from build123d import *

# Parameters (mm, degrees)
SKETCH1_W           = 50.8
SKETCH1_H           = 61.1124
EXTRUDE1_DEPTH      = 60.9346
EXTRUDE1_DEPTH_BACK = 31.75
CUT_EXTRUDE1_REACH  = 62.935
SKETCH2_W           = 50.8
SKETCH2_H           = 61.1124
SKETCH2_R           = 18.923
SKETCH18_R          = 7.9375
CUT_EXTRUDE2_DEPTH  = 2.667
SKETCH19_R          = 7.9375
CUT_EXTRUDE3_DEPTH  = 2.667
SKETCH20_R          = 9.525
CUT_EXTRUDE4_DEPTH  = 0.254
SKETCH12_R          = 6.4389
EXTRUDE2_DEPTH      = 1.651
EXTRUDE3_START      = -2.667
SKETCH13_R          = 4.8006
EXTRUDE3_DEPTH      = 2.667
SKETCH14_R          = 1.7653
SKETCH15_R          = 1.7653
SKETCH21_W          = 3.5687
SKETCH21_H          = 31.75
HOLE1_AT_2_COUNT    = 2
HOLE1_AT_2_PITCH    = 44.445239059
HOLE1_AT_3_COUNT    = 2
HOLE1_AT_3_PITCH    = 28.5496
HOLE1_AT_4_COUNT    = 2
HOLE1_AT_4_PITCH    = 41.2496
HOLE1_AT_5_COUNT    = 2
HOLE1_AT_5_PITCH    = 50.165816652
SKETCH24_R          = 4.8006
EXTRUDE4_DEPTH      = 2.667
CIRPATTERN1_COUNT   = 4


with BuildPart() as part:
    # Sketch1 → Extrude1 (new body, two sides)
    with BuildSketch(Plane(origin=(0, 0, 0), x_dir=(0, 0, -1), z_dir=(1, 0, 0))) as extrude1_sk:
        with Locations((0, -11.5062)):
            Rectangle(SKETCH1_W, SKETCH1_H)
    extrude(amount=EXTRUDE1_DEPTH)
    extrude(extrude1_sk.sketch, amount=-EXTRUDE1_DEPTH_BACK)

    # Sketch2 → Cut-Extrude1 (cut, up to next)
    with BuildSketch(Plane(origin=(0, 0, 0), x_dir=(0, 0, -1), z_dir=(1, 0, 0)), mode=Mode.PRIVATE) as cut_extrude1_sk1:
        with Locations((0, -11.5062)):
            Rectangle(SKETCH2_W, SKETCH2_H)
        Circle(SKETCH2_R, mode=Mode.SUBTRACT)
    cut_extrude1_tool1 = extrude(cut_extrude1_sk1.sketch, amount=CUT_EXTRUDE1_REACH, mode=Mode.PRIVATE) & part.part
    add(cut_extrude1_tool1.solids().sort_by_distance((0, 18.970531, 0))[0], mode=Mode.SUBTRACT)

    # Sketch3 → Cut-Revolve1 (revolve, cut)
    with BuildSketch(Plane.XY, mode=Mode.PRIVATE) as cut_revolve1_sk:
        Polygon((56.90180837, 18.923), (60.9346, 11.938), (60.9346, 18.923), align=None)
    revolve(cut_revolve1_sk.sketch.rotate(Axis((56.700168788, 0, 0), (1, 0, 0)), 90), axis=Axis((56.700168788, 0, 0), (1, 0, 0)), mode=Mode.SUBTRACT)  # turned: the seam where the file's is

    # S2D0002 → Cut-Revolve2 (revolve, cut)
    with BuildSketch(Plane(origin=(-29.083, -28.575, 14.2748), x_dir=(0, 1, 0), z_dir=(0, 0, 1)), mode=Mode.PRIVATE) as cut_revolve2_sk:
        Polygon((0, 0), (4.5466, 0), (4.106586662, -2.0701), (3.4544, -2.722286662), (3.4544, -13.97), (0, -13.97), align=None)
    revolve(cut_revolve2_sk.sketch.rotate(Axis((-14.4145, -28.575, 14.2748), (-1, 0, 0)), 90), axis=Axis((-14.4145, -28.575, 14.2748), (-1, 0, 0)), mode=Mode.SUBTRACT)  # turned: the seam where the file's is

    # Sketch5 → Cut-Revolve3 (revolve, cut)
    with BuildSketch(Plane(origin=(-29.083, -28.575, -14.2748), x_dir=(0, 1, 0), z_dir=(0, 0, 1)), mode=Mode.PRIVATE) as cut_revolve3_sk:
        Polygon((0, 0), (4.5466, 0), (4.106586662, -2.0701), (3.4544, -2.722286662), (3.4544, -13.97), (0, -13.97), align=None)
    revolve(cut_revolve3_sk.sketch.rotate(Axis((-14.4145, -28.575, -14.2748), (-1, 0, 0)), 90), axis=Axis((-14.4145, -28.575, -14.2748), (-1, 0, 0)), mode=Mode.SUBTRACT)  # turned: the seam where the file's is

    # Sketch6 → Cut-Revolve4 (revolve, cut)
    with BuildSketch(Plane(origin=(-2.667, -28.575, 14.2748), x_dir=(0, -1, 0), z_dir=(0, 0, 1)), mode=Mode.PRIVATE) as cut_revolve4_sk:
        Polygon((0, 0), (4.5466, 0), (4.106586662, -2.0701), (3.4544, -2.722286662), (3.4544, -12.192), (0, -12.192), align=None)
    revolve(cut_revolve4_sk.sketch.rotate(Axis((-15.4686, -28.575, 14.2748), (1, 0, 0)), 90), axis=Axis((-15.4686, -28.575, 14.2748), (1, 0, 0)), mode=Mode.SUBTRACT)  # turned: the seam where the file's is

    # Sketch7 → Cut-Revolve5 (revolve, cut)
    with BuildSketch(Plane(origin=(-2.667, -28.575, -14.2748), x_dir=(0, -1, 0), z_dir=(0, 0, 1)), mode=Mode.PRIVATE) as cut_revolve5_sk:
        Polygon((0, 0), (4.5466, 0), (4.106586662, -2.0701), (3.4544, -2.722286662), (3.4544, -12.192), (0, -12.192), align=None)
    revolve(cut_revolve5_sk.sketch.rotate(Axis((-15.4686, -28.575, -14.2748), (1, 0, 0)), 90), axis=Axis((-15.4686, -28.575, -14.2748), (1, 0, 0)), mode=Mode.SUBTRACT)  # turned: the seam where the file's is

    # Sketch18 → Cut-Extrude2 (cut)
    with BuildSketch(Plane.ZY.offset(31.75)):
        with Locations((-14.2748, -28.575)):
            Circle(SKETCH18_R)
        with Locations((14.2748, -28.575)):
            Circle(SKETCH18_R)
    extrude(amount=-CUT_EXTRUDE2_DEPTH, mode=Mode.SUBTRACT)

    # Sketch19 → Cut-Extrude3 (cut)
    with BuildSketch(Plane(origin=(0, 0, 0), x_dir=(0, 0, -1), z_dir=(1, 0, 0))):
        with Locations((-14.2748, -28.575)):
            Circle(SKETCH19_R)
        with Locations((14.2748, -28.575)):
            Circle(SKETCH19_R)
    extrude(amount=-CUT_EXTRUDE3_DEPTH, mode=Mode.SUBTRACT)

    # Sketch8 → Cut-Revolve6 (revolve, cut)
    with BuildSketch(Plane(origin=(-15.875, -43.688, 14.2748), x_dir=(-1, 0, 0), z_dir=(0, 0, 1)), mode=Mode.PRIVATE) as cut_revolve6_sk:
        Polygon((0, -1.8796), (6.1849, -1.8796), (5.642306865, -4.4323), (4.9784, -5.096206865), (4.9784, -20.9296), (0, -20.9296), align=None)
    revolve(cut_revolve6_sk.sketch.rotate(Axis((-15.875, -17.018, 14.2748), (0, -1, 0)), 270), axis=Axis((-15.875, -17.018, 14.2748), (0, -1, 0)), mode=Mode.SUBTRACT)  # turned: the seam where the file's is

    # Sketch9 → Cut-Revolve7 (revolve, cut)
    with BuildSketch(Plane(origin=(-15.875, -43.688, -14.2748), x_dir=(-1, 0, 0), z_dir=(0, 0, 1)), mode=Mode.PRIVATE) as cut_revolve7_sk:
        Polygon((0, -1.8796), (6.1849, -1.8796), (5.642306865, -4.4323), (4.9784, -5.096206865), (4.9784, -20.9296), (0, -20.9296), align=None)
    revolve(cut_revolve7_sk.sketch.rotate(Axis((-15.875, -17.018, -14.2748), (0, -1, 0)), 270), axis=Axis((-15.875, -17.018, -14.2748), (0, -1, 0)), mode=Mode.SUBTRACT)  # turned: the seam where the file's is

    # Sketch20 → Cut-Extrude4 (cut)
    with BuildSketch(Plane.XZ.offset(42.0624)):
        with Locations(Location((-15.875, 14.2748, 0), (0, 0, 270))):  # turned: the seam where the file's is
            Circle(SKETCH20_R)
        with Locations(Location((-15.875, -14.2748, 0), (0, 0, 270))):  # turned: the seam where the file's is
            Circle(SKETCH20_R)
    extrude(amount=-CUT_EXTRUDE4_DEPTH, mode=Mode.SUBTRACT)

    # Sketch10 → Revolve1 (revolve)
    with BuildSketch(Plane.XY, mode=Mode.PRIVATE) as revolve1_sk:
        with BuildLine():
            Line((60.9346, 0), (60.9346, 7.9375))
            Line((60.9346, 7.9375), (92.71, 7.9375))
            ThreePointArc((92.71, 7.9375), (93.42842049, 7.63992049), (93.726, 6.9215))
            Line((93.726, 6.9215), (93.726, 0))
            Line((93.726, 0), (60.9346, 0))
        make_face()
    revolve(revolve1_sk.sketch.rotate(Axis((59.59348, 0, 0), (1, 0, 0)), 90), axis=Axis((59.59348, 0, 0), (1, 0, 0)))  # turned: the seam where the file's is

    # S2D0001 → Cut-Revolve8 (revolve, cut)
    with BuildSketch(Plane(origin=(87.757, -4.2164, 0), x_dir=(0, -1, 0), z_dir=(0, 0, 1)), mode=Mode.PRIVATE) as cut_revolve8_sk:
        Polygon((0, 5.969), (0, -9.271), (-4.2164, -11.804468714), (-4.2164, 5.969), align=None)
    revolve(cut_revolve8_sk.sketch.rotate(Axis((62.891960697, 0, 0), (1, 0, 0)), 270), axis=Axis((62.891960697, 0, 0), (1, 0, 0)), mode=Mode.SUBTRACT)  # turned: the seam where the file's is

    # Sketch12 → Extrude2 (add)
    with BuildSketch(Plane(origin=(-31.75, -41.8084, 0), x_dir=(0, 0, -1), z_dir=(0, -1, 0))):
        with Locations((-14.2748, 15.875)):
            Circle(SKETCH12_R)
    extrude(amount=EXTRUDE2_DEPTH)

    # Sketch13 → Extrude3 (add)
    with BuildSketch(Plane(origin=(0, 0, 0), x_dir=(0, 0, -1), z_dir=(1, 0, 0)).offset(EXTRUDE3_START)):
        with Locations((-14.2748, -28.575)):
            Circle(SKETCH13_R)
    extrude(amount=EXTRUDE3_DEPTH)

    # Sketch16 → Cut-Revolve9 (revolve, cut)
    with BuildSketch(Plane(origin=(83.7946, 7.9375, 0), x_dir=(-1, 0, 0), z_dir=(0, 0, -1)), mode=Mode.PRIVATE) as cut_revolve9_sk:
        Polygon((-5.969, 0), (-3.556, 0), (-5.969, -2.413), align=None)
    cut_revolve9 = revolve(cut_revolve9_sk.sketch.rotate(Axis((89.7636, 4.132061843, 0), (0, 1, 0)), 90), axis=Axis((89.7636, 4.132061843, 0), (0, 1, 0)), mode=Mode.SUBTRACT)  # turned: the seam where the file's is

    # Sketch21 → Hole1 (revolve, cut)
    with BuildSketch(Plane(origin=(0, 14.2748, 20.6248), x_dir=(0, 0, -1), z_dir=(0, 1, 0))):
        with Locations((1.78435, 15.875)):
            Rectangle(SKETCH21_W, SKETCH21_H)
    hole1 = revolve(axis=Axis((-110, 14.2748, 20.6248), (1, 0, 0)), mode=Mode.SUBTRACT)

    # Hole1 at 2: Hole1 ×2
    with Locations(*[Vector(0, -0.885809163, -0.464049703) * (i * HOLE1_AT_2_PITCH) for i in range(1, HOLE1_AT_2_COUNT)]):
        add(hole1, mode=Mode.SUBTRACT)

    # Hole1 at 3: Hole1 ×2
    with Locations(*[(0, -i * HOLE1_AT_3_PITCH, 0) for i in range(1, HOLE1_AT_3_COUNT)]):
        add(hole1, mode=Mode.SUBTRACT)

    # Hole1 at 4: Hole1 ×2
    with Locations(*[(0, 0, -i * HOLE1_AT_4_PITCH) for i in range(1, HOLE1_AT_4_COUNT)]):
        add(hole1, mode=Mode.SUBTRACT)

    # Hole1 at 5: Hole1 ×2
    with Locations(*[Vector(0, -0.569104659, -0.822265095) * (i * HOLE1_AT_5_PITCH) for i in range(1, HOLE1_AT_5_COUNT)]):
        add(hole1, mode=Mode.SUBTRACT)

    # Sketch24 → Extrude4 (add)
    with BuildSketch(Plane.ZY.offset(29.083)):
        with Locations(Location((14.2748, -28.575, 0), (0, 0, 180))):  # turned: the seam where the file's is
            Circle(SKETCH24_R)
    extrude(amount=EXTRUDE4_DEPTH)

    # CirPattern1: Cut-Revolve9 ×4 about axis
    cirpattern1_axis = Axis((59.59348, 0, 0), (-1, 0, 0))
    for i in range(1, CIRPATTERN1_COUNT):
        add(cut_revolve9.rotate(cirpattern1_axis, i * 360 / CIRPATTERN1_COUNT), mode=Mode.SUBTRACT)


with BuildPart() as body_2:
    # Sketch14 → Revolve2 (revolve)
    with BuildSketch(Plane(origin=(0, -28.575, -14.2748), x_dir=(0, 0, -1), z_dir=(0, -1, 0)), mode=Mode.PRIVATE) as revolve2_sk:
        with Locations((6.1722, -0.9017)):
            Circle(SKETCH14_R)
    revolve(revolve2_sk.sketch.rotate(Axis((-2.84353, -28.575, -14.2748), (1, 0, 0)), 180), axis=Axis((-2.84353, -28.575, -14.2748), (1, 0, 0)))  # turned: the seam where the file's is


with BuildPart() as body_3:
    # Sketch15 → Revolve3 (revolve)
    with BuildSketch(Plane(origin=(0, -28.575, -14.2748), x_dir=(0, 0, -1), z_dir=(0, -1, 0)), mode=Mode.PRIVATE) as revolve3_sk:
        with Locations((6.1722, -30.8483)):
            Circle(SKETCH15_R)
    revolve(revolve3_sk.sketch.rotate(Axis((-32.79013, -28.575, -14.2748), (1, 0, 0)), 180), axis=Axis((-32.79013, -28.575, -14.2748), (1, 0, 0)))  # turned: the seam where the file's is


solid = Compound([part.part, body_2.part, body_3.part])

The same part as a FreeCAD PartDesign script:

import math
import FreeCAD as App
import Part
import Sketcher
Q = App.Units.Quantity


def add_polygon(sketch, points):
    """Adds a closed chain of lines whose ends are joined by coincident constraints."""
    first, n = sketch.GeometryCount, len(points)
    for a, b in zip(points, points[1:] + points[:1]):
        sketch.addGeometry(Part.LineSegment(App.Vector(*a, 0), App.Vector(*b, 0)), False)
    for i in range(n):
        sketch.addConstraint(Sketcher.Constraint("Coincident", first + i, 2, first + (i + 1) % n, 1))

doc = App.newDocument("Part")
params = doc.addObject("Spreadsheet::Sheet", "Params")
for row, (alias, value) in enumerate([
    ("sketch1_height", "2 in"),
    ("sketch1_width", "2.406 in"),
    ("pad1_length", "2.399 in"),
    ("pad1_length2", "1.25 in"),
    ("sketch2_diameter", "1.49 in"),
    ("sketch2_height", "2 in"),
    ("sketch2_width", "2.406 in"),
    ("sketch3_height", "0.275 in"),
    ("groove_angle", "360 deg"),
    ("sketch4_width", "0.55 in"),
    ("sketch4_height", "0.179 in"),
    ("sketch4_height2", "0.136 in"),
    ("groove2_angle", "360 deg"),
    ("sketch5_width", "0.55 in"),
    ("sketch5_height", "0.179 in"),
    ("sketch5_height2", "0.136 in"),
    ("groove3_angle", "360 deg"),
    ("sketch6_width", "0.48 in"),
    ("sketch6_height", "0.179 in"),
    ("sketch6_height2", "0.136 in"),
    ("groove4_angle", "360 deg"),
    ("sketch7_width", "0.48 in"),
    ("sketch7_height", "0.179 in"),
    ("sketch7_height2", "0.136 in"),
    ("groove5_angle", "360 deg"),
    ("sketch8_diameter", "0.625 in"),
    ("pocket2_length", "0.105 in"),
    ("sketch9_diameter", "0.625 in"),
    ("pocket3_length", "0.105 in"),
    ("sketch10_height", "0.75 in"),
    ("sketch10_width", "0.196 in"),
    ("groove6_angle", "360 deg"),
    ("sketch11_height", "0.75 in"),
    ("sketch11_width", "0.196 in"),
    ("groove7_angle", "360 deg"),
    ("sketch12_diameter", "0.75 in"),
    ("pocket4_length", "0.01 in"),
    ("sketch13_radius", "0.04 in"),
    ("sketch13_width", "1.291 in"),
    ("sketch13_height", "0.3125 in"),
    ("revolution_angle", "360 deg"),
    ("sketch14_width", "0.6 in"),
    ("sketch14_height", "0.166 in"),
    ("groove8_angle", "360 deg"),
    ("sketch15_diameter", "0.507 in"),
    ("pad2_length", "0.065 in"),
    ("sketch16_diameter", "0.378 in"),
    ("pad3_length", "0.105 in"),
    ("sketch17_width", "0.095 in"),
    ("groove9_angle", "360 deg"),
    ("sketch18_width", "1.25 in"),
    ("groove10_angle", "360 deg"),
    ("linearpattern_pitch", "44.445239 mm"),
    ("linearpattern2_pitch", "1.124 in"),
    ("linearpattern3_pitch", "1.624 in"),
    ("linearpattern4_pitch", "50.165817 mm"),
    ("sketch19_diameter", "0.378 in"),
    ("pad4_length", "0.105 in"),
    ("sketch20_diameter", "0.139 in"),
    ("revolution2_angle", "360 deg"),
    ("sketch21_diameter", "0.139 in"),
    ("revolution3_angle", "360 deg"),
], start=1):
    params.set(f"A{row}", alias)
    params.set(f"B{row}", "=" + value)
    params.setAlias(f"B{row}", alias)

body = doc.addObject("PartDesign::Body", "Body")

# Sketch on YZ plane
sketch1 = doc.addObject("Sketcher::SketchObject", "Sketch")
body.addObject(sketch1)
sketch1.AttachmentSupport = (doc.YZ_Plane, [""])
sketch1.MapMode = "FlatFace"
add_polygon(sketch1, [(19, 25), (-42, 25), (-42, -25), (19, -25)])  # lines 0-3
sketch1.addConstraint([
    Sketcher.Constraint("Horizontal", 0),
    Sketcher.Constraint("Vertical", 1),
    Sketcher.Constraint("Horizontal", 2),
    Sketcher.Constraint("Vertical", 3),
    Sketcher.Constraint("DistanceY", 1, 2, 1, 1, Q("2 in")),
    Sketcher.Constraint("DistanceY", -1, 1, 0, 2, Q("1 in")),
    Sketcher.Constraint("DistanceX", 0, 2, 0, 1, Q("2.406 in")),
    Sketcher.Constraint("DistanceX", -1, 1, 2, 2, Q("0.75 in")),
])
sketch1.setExpression("Constraints[8]", "Params.sketch1_height")
sketch1.setExpression("Constraints[10]", "Params.sketch1_width")
pad1 = doc.addObject("PartDesign::Pad", "Pad")
body.addObject(pad1)
pad1.Profile = sketch1
pad1.Type = "TwoLengths"
pad1.setExpression("Length", "Params.pad1_length")
pad1.setExpression("Length2", "Params.pad1_length2")

# Sketch on YZ plane
sketch2 = doc.addObject("Sketcher::SketchObject", "Sketch001")
body.addObject(sketch2)
sketch2.AttachmentSupport = (doc.YZ_Plane, [""])
sketch2.MapMode = "FlatFace"
add_polygon(sketch2, [(19, 25), (-42, 25), (-42, -25), (19, -25)])  # lines 0-3
sketch2.addGeometry(Part.Circle(App.Vector(0, 0, 0), App.Vector(0, 0, 1), 19), False)  # 4
sketch2.addConstraint([
    Sketcher.Constraint("Horizontal", 0),
    Sketcher.Constraint("Vertical", 1),
    Sketcher.Constraint("Horizontal", 2),
    Sketcher.Constraint("Vertical", 3),
    Sketcher.Constraint("Coincident", 4, 3, -1, 1),
    Sketcher.Constraint("Diameter", 4, Q("1.49 in")),
    Sketcher.Constraint("DistanceY", 1, 2, 1, 1, Q("2 in")),
    Sketcher.Constraint("DistanceY", -1, 1, 0, 2, Q("1 in")),
    Sketcher.Constraint("DistanceX", 0, 2, 0, 1, Q("2.406 in")),
    Sketcher.Constraint("DistanceX", -1, 1, 2, 2, Q("0.75 in")),
])
sketch2.setExpression("Constraints[9]", "Params.sketch2_diameter")
sketch2.setExpression("Constraints[10]", "Params.sketch2_height")
sketch2.setExpression("Constraints[12]", "Params.sketch2_width")
pocket1 = doc.addObject("PartDesign::Pocket", "Pocket")
body.addObject(pocket1)
pocket1.Profile = sketch2
pocket1.Type = "UpToFirst"
pocket1.Reversed = True

# Sketch on XY plane
sketch3 = doc.addObject("Sketcher::SketchObject", "Sketch002")
body.addObject(sketch3)
sketch3.AttachmentSupport = (doc.XY_Plane, [""])
sketch3.MapMode = "FlatFace"
add_polygon(sketch3, [(56.9, 18.9), (60.9, 11.9), (60.9, 18.9)])  # lines 0-2
sketch3.addConstraint([
    Sketcher.Constraint("Vertical", 1),
    Sketcher.Constraint("Horizontal", 2),
    Sketcher.Constraint("Angle", 0, Q("-60 deg")),
    Sketcher.Constraint("DistanceY", 1, 1, 1, 2, Q("0.275 in")),
    Sketcher.Constraint("DistanceY", -1, 1, 0, 2, Q("0.47 in")),
    Sketcher.Constraint("DistanceX", -1, 1, 0, 2, Q("2.399 in")),
])
sketch3.setExpression("Constraints[6]", "Params.sketch3_height")
groove = doc.addObject("PartDesign::Groove", "Groove")
body.addObject(groove)
groove.Profile = sketch3
groove.ReferenceAxis = (sketch3, ["H_Axis"])
groove.setExpression("Angle", "Params.groove_angle")

# Sketch on XY plane
sketch4 = doc.addObject("Sketcher::SketchObject", "Sketch003")
body.addObject(sketch4)
sketch4.AttachmentSupport = (doc.XY_Plane, [""])
sketch4.MapMode = "FlatFace"
sketch4.AttachmentOffset = App.Placement(App.Vector(0, 0, 0.562 * 25.4), App.Rotation())
add_polygon(sketch4, [(-29.1, -24), (-29.1, -28.6), (-15.1, -28.6), (-15.1, -25.1), (-26.4, -25.1), (-27, -24.5)])  # lines 0-5
sketch4.addGeometry(Part.LineSegment(App.Vector(-15.1, -28.6, 0), App.Vector(-29.1, -28.6, 0)), True)  # axis
sketch4.addConstraint([
    Sketcher.Constraint("Vertical", 0),
    Sketcher.Constraint("Horizontal", 1),
    Sketcher.Constraint("Vertical", 2),
    Sketcher.Constraint("Horizontal", 3),
    Sketcher.Constraint("Horizontal", 6),
    Sketcher.Constraint("Coincident", 6, 1, 1, 2),
    Sketcher.Constraint("Vertical", 5, 2, 6, 2),
    Sketcher.Constraint("Angle", 4, Q("135 deg")),
    Sketcher.Constraint("Angle", 5, Q("168 deg")),
    Sketcher.Constraint("DistanceX", 1, 1, 1, 2, Q("0.55 in")),
    Sketcher.Constraint("DistanceY", 0, 2, 0, 1, Q("0.179 in")),
    Sketcher.Constraint("DistanceY", 2, 1, 2, 2, Q("0.136 in")),
    Sketcher.Constraint("DistanceX", 0, 2, -1, 1, Q("1.145 in")),
    Sketcher.Constraint("DistanceY", 0, 2, -1, 1, Q("1.125 in")),
    Sketcher.Constraint("DistanceX", 4, 2, -1, 1, Q("1.0635 in")),
])
sketch4.setExpression("Constraints[15]", "Params.sketch4_width")
sketch4.setExpression("Constraints[16]", "Params.sketch4_height")
sketch4.setExpression("Constraints[17]", "Params.sketch4_height2")
groove2 = doc.addObject("PartDesign::Groove", "Groove001")
body.addObject(groove2)
groove2.Profile = sketch4
groove2.ReferenceAxis = (sketch4, ["Axis0"])
groove2.setExpression("Angle", "Params.groove2_angle")

# Sketch on XY plane
sketch5 = doc.addObject("Sketcher::SketchObject", "Sketch004")
body.addObject(sketch5)
sketch5.AttachmentSupport = (doc.XY_Plane, [""])
sketch5.MapMode = "FlatFace"
sketch5.AttachmentOffset = App.Placement(App.Vector(0, 0, -0.562 * 25.4), App.Rotation())
add_polygon(sketch5, [(-29.1, -24), (-29.1, -28.6), (-15.1, -28.6), (-15.1, -25.1), (-26.4, -25.1), (-27, -24.5)])  # lines 0-5
sketch5.addGeometry(Part.LineSegment(App.Vector(-15.1, -28.6, 0), App.Vector(-29.1, -28.6, 0)), True)  # axis
sketch5.addConstraint([
    Sketcher.Constraint("Vertical", 0),
    Sketcher.Constraint("Horizontal", 1),
    Sketcher.Constraint("Vertical", 2),
    Sketcher.Constraint("Horizontal", 3),
    Sketcher.Constraint("Horizontal", 6),
    Sketcher.Constraint("Coincident", 6, 1, 1, 2),
    Sketcher.Constraint("Vertical", 5, 2, 6, 2),
    Sketcher.Constraint("Angle", 4, Q("135 deg")),
    Sketcher.Constraint("Angle", 5, Q("168 deg")),
    Sketcher.Constraint("DistanceX", 1, 1, 1, 2, Q("0.55 in")),
    Sketcher.Constraint("DistanceY", 0, 2, 0, 1, Q("0.179 in")),
    Sketcher.Constraint("DistanceY", 2, 1, 2, 2, Q("0.136 in")),
    Sketcher.Constraint("DistanceX", 0, 2, -1, 1, Q("1.145 in")),
    Sketcher.Constraint("DistanceY", 0, 2, -1, 1, Q("1.125 in")),
    Sketcher.Constraint("DistanceX", 4, 2, -1, 1, Q("1.0635 in")),
])
sketch5.setExpression("Constraints[15]", "Params.sketch5_width")
sketch5.setExpression("Constraints[16]", "Params.sketch5_height")
sketch5.setExpression("Constraints[17]", "Params.sketch5_height2")
groove3 = doc.addObject("PartDesign::Groove", "Groove002")
body.addObject(groove3)
groove3.Profile = sketch5
groove3.ReferenceAxis = (sketch5, ["Axis0"])
groove3.setExpression("Angle", "Params.groove3_angle")

# Sketch on XY plane
sketch6 = doc.addObject("Sketcher::SketchObject", "Sketch005")
body.addObject(sketch6)
sketch6.AttachmentSupport = (doc.XY_Plane, [""])
sketch6.MapMode = "FlatFace"
sketch6.AttachmentOffset = App.Placement(App.Vector(0, 0, 0.562 * 25.4), App.Rotation())
add_polygon(sketch6, [(-2.7, -33.1), (-2.7, -28.6), (-14.9, -28.6), (-14.9, -32), (-5.4, -32), (-4.7, -32.7)])  # lines 0-5
sketch6.addGeometry(Part.LineSegment(App.Vector(-14.9, -28.6, 0), App.Vector(-2.7, -28.6, 0)), True)  # axis
sketch6.addConstraint([
    Sketcher.Constraint("Vertical", 0),
    Sketcher.Constraint("Horizontal", 1),
    Sketcher.Constraint("Vertical", 2),
    Sketcher.Constraint("Horizontal", 3),
    Sketcher.Constraint("Horizontal", 6),
    Sketcher.Constraint("Coincident", 6, 1, 1, 2),
    Sketcher.Constraint("Vertical", 5, 2, 6, 2),
    Sketcher.Constraint("Angle", 4, Q("-45 deg")),
    Sketcher.Constraint("Angle", 5, Q("-12 deg")),
    Sketcher.Constraint("DistanceX", 1, 2, 1, 1, Q("0.48 in")),
    Sketcher.Constraint("DistanceY", 0, 1, 0, 2, Q("0.179 in")),
    Sketcher.Constraint("DistanceY", 2, 2, 2, 1, Q("0.136 in")),
    Sketcher.Constraint("DistanceX", 0, 2, -1, 1, Q("0.105 in")),
    Sketcher.Constraint("DistanceY", 0, 2, -1, 1, Q("1.125 in")),
    Sketcher.Constraint("DistanceX", 4, 2, -1, 1, Q("0.1865 in")),
])
sketch6.setExpression("Constraints[15]", "Params.sketch6_width")
sketch6.setExpression("Constraints[16]", "Params.sketch6_height")
sketch6.setExpression("Constraints[17]", "Params.sketch6_height2")
groove4 = doc.addObject("PartDesign::Groove", "Groove003")
body.addObject(groove4)
groove4.Profile = sketch6
groove4.ReferenceAxis = (sketch6, ["Axis0"])
groove4.setExpression("Angle", "Params.groove4_angle")

# Sketch on XY plane
sketch7 = doc.addObject("Sketcher::SketchObject", "Sketch006")
body.addObject(sketch7)
sketch7.AttachmentSupport = (doc.XY_Plane, [""])
sketch7.MapMode = "FlatFace"
sketch7.AttachmentOffset = App.Placement(App.Vector(0, 0, -0.562 * 25.4), App.Rotation())
add_polygon(sketch7, [(-2.7, -33.1), (-2.7, -28.6), (-14.9, -28.6), (-14.9, -32), (-5.4, -32), (-4.7, -32.7)])  # lines 0-5
sketch7.addGeometry(Part.LineSegment(App.Vector(-14.9, -28.6, 0), App.Vector(-2.7, -28.6, 0)), True)  # axis
sketch7.addConstraint([
    Sketcher.Constraint("Vertical", 0),
    Sketcher.Constraint("Horizontal", 1),
    Sketcher.Constraint("Vertical", 2),
    Sketcher.Constraint("Horizontal", 3),
    Sketcher.Constraint("Horizontal", 6),
    Sketcher.Constraint("Coincident", 6, 1, 1, 2),
    Sketcher.Constraint("Vertical", 5, 2, 6, 2),
    Sketcher.Constraint("Angle", 4, Q("-45 deg")),
    Sketcher.Constraint("Angle", 5, Q("-12 deg")),
    Sketcher.Constraint("DistanceX", 1, 2, 1, 1, Q("0.48 in")),
    Sketcher.Constraint("DistanceY", 0, 1, 0, 2, Q("0.179 in")),
    Sketcher.Constraint("DistanceY", 2, 2, 2, 1, Q("0.136 in")),
    Sketcher.Constraint("DistanceX", 0, 2, -1, 1, Q("0.105 in")),
    Sketcher.Constraint("DistanceY", 0, 2, -1, 1, Q("1.125 in")),
    Sketcher.Constraint("DistanceX", 4, 2, -1, 1, Q("0.1865 in")),
])
sketch7.setExpression("Constraints[15]", "Params.sketch7_width")
sketch7.setExpression("Constraints[16]", "Params.sketch7_height")
sketch7.setExpression("Constraints[17]", "Params.sketch7_height2")
groove5 = doc.addObject("PartDesign::Groove", "Groove004")
body.addObject(groove5)
groove5.Profile = sketch7
groove5.ReferenceAxis = (sketch7, ["Axis0"])
groove5.setExpression("Angle", "Params.groove5_angle")

# Sketch on YZ plane
sketch8 = doc.addObject("Sketcher::SketchObject", "Sketch007")
body.addObject(sketch8)
sketch8.AttachmentSupport = (doc.YZ_Plane, [""])
sketch8.MapMode = "FlatFace"
sketch8.AttachmentOffset = App.Placement(App.Vector(0, 0, -1.25 * 25.4), App.Rotation())
sketch8.addGeometry([
    Part.Circle(App.Vector(-29, -14, 0), App.Vector(0, 0, 1), 8),
    Part.Circle(App.Vector(-29, 14, 0), App.Vector(0, 0, 1), 8),
], False)
sketch8.addConstraint([
    Sketcher.Constraint("Equal", 0, 1),
    Sketcher.Constraint("Symmetric", 0, 3, 1, 3, -1),
    Sketcher.Constraint("Diameter", 0, Q("0.625 in")),
    Sketcher.Constraint("DistanceX", 0, 3, -1, 1, Q("1.125 in")),
    Sketcher.Constraint("DistanceY", 0, 3, -1, 1, Q("0.562 in")),
])
sketch8.setExpression("Constraints[2]", "Params.sketch8_diameter")
pocket2 = doc.addObject("PartDesign::Pocket", "Pocket001")
body.addObject(pocket2)
pocket2.Profile = sketch8
pocket2.setExpression("Length", "Params.pocket2_length")
pocket2.Reversed = True

# Sketch on YZ plane
sketch9 = doc.addObject("Sketcher::SketchObject", "Sketch008")
body.addObject(sketch9)
sketch9.AttachmentSupport = (doc.YZ_Plane, [""])
sketch9.MapMode = "FlatFace"
sketch9.addGeometry([
    Part.Circle(App.Vector(-29, 14, 0), App.Vector(0, 0, 1), 8),
    Part.Circle(App.Vector(-29, -14, 0), App.Vector(0, 0, 1), 8),
], False)
sketch9.addConstraint([
    Sketcher.Constraint("Equal", 0, 1),
    Sketcher.Constraint("Symmetric", 0, 3, 1, 3, -1),
    Sketcher.Constraint("Diameter", 0, Q("0.625 in")),
    Sketcher.Constraint("DistanceX", 0, 3, -1, 1, Q("1.125 in")),
    Sketcher.Constraint("DistanceY", -1, 1, 0, 3, Q("0.562 in")),
])
sketch9.setExpression("Constraints[2]", "Params.sketch9_diameter")
pocket3 = doc.addObject("PartDesign::Pocket", "Pocket002")
body.addObject(pocket3)
pocket3.Profile = sketch9
pocket3.setExpression("Length", "Params.pocket3_length")

# Sketch on XY plane
sketch10 = doc.addObject("Sketcher::SketchObject", "Sketch009")
body.addObject(sketch10)
sketch10.AttachmentSupport = (doc.XY_Plane, [""])
sketch10.MapMode = "FlatFace"
sketch10.AttachmentOffset = App.Placement(App.Vector(0, 0, 0.562 * 25.4), App.Rotation())
add_polygon(sketch10, [(-22.1, -41.8), (-15.9, -41.8), (-15.9, -22.8), (-20.9, -22.8), (-20.9, -38.6), (-21.5, -39.3)])  # lines 0-5
sketch10.addGeometry(Part.LineSegment(App.Vector(-15.9, -22.8, 0), App.Vector(-15.9, -41.8, 0)), True)  # axis
sketch10.addConstraint([
    Sketcher.Constraint("Horizontal", 0),
    Sketcher.Constraint("Vertical", 1),
    Sketcher.Constraint("Horizontal", 2),
    Sketcher.Constraint("Vertical", 3),
    Sketcher.Constraint("Vertical", 6),
    Sketcher.Constraint("Coincident", 6, 1, 1, 2),
    Sketcher.Constraint("Horizontal", 5, 2, 6, 2),
    Sketcher.Constraint("Angle", 4, Q("-135 deg")),
    Sketcher.Constraint("Angle", 5, Q("-102 deg")),
    Sketcher.Constraint("DistanceY", 1, 1, 1, 2, Q("0.75 in")),
    Sketcher.Constraint("DistanceX", 2, 2, 2, 1, Q("0.196 in")),
    Sketcher.Constraint("DistanceX", 0, 1, 0, 2, Q("0.2435 in")),
    Sketcher.Constraint("DistanceX", 0, 2, -1, 1, Q("0.625 in")),
    Sketcher.Constraint("DistanceY", 0, 2, -1, 1, Q("1.646 in")),
    Sketcher.Constraint("DistanceY", 4, 2, -1, 1, Q("1.5455 in")),
])
sketch10.setExpression("Constraints[15]", "Params.sketch10_height")
sketch10.setExpression("Constraints[16]", "Params.sketch10_width")
groove6 = doc.addObject("PartDesign::Groove", "Groove005")
body.addObject(groove6)
groove6.Profile = sketch10
groove6.ReferenceAxis = (sketch10, ["Axis0"])
groove6.setExpression("Angle", "Params.groove6_angle")

# Sketch on XY plane
sketch11 = doc.addObject("Sketcher::SketchObject", "Sketch010")
body.addObject(sketch11)
sketch11.AttachmentSupport = (doc.XY_Plane, [""])
sketch11.MapMode = "FlatFace"
sketch11.AttachmentOffset = App.Placement(App.Vector(0, 0, -0.562 * 25.4), App.Rotation())
add_polygon(sketch11, [(-22.1, -41.8), (-15.9, -41.8), (-15.9, -22.8), (-20.9, -22.8), (-20.9, -38.6), (-21.5, -39.3)])  # lines 0-5
sketch11.addGeometry(Part.LineSegment(App.Vector(-15.9, -22.8, 0), App.Vector(-15.9, -41.8, 0)), True)  # axis
sketch11.addConstraint([
    Sketcher.Constraint("Horizontal", 0),
    Sketcher.Constraint("Vertical", 1),
    Sketcher.Constraint("Horizontal", 2),
    Sketcher.Constraint("Vertical", 3),
    Sketcher.Constraint("Vertical", 6),
    Sketcher.Constraint("Coincident", 6, 1, 1, 2),
    Sketcher.Constraint("Horizontal", 5, 2, 6, 2),
    Sketcher.Constraint("Angle", 4, Q("-135 deg")),
    Sketcher.Constraint("Angle", 5, Q("-102 deg")),
    Sketcher.Constraint("DistanceY", 1, 1, 1, 2, Q("0.75 in")),
    Sketcher.Constraint("DistanceX", 2, 2, 2, 1, Q("0.196 in")),
    Sketcher.Constraint("DistanceX", 0, 1, 0, 2, Q("0.2435 in")),
    Sketcher.Constraint("DistanceX", 0, 2, -1, 1, Q("0.625 in")),
    Sketcher.Constraint("DistanceY", 0, 2, -1, 1, Q("1.646 in")),
    Sketcher.Constraint("DistanceY", 4, 2, -1, 1, Q("1.5455 in")),
])
sketch11.setExpression("Constraints[15]", "Params.sketch11_height")
sketch11.setExpression("Constraints[16]", "Params.sketch11_width")
groove7 = doc.addObject("PartDesign::Groove", "Groove006")
body.addObject(groove7)
groove7.Profile = sketch11
groove7.ReferenceAxis = (sketch11, ["Axis0"])
groove7.setExpression("Angle", "Params.groove7_angle")

# Sketch on XZ plane
sketch12 = doc.addObject("Sketcher::SketchObject", "Sketch011")
body.addObject(sketch12)
sketch12.AttachmentSupport = (doc.XZ_Plane, [""])
sketch12.MapMode = "FlatFace"
sketch12.AttachmentOffset = App.Placement(App.Vector(0, 0, 1.656 * 25.4), App.Rotation())
sketch12.addGeometry([
    Part.Circle(App.Vector(-16, 14, 0), App.Vector(0, 0, 1), 10),
    Part.Circle(App.Vector(-16, -14, 0), App.Vector(0, 0, 1), 10),
], False)
sketch12.addConstraint([
    Sketcher.Constraint("Equal", 0, 1),
    Sketcher.Constraint("Symmetric", 0, 3, 1, 3, -1),
    Sketcher.Constraint("Diameter", 0, Q("0.75 in")),
    Sketcher.Constraint("DistanceX", 0, 3, -1, 1, Q("0.625 in")),
    Sketcher.Constraint("DistanceY", -1, 1, 0, 3, Q("0.562 in")),
])
sketch12.setExpression("Constraints[2]", "Params.sketch12_diameter")
pocket4 = doc.addObject("PartDesign::Pocket", "Pocket003")
body.addObject(pocket4)
pocket4.Profile = sketch12
pocket4.setExpression("Length", "Params.pocket4_length")

# Sketch on XY plane
sketch13 = doc.addObject("Sketcher::SketchObject", "Sketch012")
body.addObject(sketch13)
sketch13.AttachmentSupport = (doc.XY_Plane, [""])
sketch13.MapMode = "FlatFace"
sketch13.addGeometry([
    Part.LineSegment(App.Vector(60.9, 7.9, 0), App.Vector(60.9, 0, 0)),  # 0
    Part.LineSegment(App.Vector(60.9, 0, 0), App.Vector(93.7, 0, 0)),  # 1
    Part.LineSegment(App.Vector(93.7, 0, 0), App.Vector(93.7, 6.9, 0)),  # 2
    Part.ArcOfCircle(Part.Circle(App.Vector(92.7, 6.9, 0), App.Vector(0, 0, 1), 1), math.radians(0), math.radians(90)),  # 3
    Part.LineSegment(App.Vector(92.7, 7.9, 0), App.Vector(60.9, 7.9, 0)),  # 4
], False)
sketch13.addConstraint([
    Sketcher.Constraint("Coincident", 0, 2, 1, 1),
    Sketcher.Constraint("Coincident", 1, 2, 2, 1),
    Sketcher.Constraint("Tangent", 2, 2, 3, 1),
    Sketcher.Constraint("Tangent", 3, 2, 4, 1),
    Sketcher.Constraint("Coincident", 4, 2, 0, 1),
    Sketcher.Constraint("Vertical", 0),
    Sketcher.Constraint("Horizontal", 1),
    Sketcher.Constraint("Vertical", 2),
    Sketcher.Constraint("Horizontal", 4),
    Sketcher.Constraint("PointOnObject", 0, 2, -1),
    Sketcher.Constraint("Radius", 3, Q("0.04 in")),
    Sketcher.Constraint("DistanceX", 1, 1, 1, 2, Q("1.291 in")),
    Sketcher.Constraint("DistanceY", 0, 2, 0, 1, Q("0.3125 in")),
    Sketcher.Constraint("DistanceX", -1, 1, 3, 3, Q("3.65 in")),
])
sketch13.setExpression("Constraints[10]", "Params.sketch13_radius")
sketch13.setExpression("Constraints[11]", "Params.sketch13_width")
sketch13.setExpression("Constraints[12]", "Params.sketch13_height")
revolution = doc.addObject("PartDesign::Revolution", "Revolution")
body.addObject(revolution)
revolution.Profile = sketch13
revolution.ReferenceAxis = (sketch13, ["H_Axis"])
revolution.setExpression("Angle", "Params.revolution_angle")

# Sketch on XY plane
sketch14 = doc.addObject("Sketcher::SketchObject", "Sketch013")
body.addObject(sketch14)
sketch14.AttachmentSupport = (doc.XY_Plane, [""])
sketch14.MapMode = "FlatFace"
add_polygon(sketch14, [(78.5, -4.2), (93.7, -4.2), (93.7, 0), (76, 0)])  # lines 0-3
sketch14.addConstraint([
    Sketcher.Constraint("Horizontal", 0),
    Sketcher.Constraint("Vertical", 1),
    Sketcher.Constraint("Horizontal", 2),
    Sketcher.Constraint("PointOnObject", 1, 2, -1),
    Sketcher.Constraint("DistanceX", 0, 1, 0, 2, Q("0.6 in")),
    Sketcher.Constraint("Angle", 3, Q("-59 deg")),
    Sketcher.Constraint("DistanceY", 1, 1, 1, 2, Q("0.166 in")),
    Sketcher.Constraint("DistanceX", -1, 1, 0, 2, Q("3.69 in")),
])
sketch14.setExpression("Constraints[8]", "Params.sketch14_width")
sketch14.setExpression("Constraints[10]", "Params.sketch14_height")
groove8 = doc.addObject("PartDesign::Groove", "Groove007")
body.addObject(groove8)
groove8.Profile = sketch14
groove8.ReferenceAxis = (sketch14, ["H_Axis"])
groove8.setExpression("Angle", "Params.groove8_angle")

# Sketch on XZ plane
sketch15 = doc.addObject("Sketcher::SketchObject", "Sketch014")
body.addObject(sketch15)
sketch15.AttachmentSupport = (doc.XZ_Plane, [""])
sketch15.MapMode = "FlatFace"
sketch15.AttachmentOffset = App.Placement(App.Vector(0, 0, 1.646 * 25.4), App.Rotation())
sketch15.addGeometry(Part.Circle(App.Vector(-16, 14, 0), App.Vector(0, 0, 1), 6), False)
sketch15.addConstraint([
    Sketcher.Constraint("Diameter", 0, Q("0.507 in")),
    Sketcher.Constraint("DistanceX", 0, 3, -1, 1, Q("0.625 in")),
    Sketcher.Constraint("DistanceY", -1, 1, 0, 3, Q("0.562 in")),
])
sketch15.setExpression("Constraints[0]", "Params.sketch15_diameter")
pad2 = doc.addObject("PartDesign::Pad", "Pad001")
body.addObject(pad2)
pad2.Profile = sketch15
pad2.setExpression("Length", "Params.pad2_length")

# Sketch on YZ plane
sketch16 = doc.addObject("Sketcher::SketchObject", "Sketch015")
body.addObject(sketch16)
sketch16.AttachmentSupport = (doc.YZ_Plane, [""])
sketch16.MapMode = "FlatFace"
sketch16.AttachmentOffset = App.Placement(App.Vector(0, 0, -0.105 * 25.4), App.Rotation())
sketch16.addGeometry(Part.Circle(App.Vector(-28.6, 14.3, 0), App.Vector(0, 0, 1), 4.8), False)
sketch16.addConstraint([
    Sketcher.Constraint("Diameter", 0, Q("0.378 in")),
    Sketcher.Constraint("DistanceX", 0, 3, -1, 1, Q("1.125 in")),
    Sketcher.Constraint("DistanceY", -1, 1, 0, 3, Q("0.562 in")),
])
sketch16.setExpression("Constraints[0]", "Params.sketch16_diameter")
pad3 = doc.addObject("PartDesign::Pad", "Pad002")
body.addObject(pad3)
pad3.Profile = sketch16
pad3.setExpression("Length", "Params.pad3_length")

# Sketch on XY plane
sketch17 = doc.addObject("Sketcher::SketchObject", "Sketch016")
body.addObject(sketch17)
sketch17.AttachmentSupport = (doc.XY_Plane, [""])
sketch17.MapMode = "FlatFace"
add_polygon(sketch17, [(87.4, 7.9), (89.8, 7.9), (89.8, 5.5)])  # lines 0-2
sketch17.addGeometry(Part.LineSegment(App.Vector(89.8, 5.5, 0), App.Vector(89.8, 7.9, 0)), True)  # axis
sketch17.addConstraint([
    Sketcher.Constraint("Horizontal", 0),
    Sketcher.Constraint("Vertical", 1),
    Sketcher.Constraint("Vertical", 3),
    Sketcher.Constraint("Coincident", 3, 1, 1, 2),
    Sketcher.Constraint("Horizontal", 2, 2, 3, 2),
    Sketcher.Constraint("Equal", 0, 1),
    Sketcher.Constraint("DistanceX", 0, 1, 0, 2, Q("0.095 in")),
    Sketcher.Constraint("DistanceX", -1, 1, 0, 2, Q("3.534 in")),
    Sketcher.Constraint("DistanceY", -1, 1, 0, 2, Q("0.3125 in")),
])
sketch17.setExpression("Constraints[9]", "Params.sketch17_width")
groove9 = doc.addObject("PartDesign::Groove", "Groove008")
body.addObject(groove9)
groove9.Profile = sketch17
groove9.ReferenceAxis = (sketch17, ["Axis0"])
groove9.setExpression("Angle", "Params.groove9_angle")

# Sketch on XZ plane
sketch18 = doc.addObject("Sketcher::SketchObject", "Sketch017")
body.addObject(sketch18)
sketch18.AttachmentSupport = (doc.XZ_Plane, [""])
sketch18.MapMode = "FlatFace"
sketch18.AttachmentOffset = App.Placement(App.Vector(0, 0, -0.562 * 25.4), App.Rotation())
add_polygon(sketch18, [(-31.8, 20.6), (0, 20.6), (0, 17.1), (-31.8, 17.1)])  # lines 0-3
sketch18.addGeometry(Part.LineSegment(App.Vector(-31.8, 20.6, 0), App.Vector(0, 20.6, 0)), True)  # axis
sketch18.addConstraint([
    Sketcher.Constraint("Horizontal", 0),
    Sketcher.Constraint("Vertical", 1),
    Sketcher.Constraint("Horizontal", 2),
    Sketcher.Constraint("Vertical", 3),
    Sketcher.Constraint("Horizontal", 4),
    Sketcher.Constraint("Coincident", 4, 1, 3, 2),
    Sketcher.Constraint("PointOnObject", 0, 2, -2),
    Sketcher.Constraint("PointOnObject", 4, 2, -2),
    Sketcher.Constraint("DistanceX", 0, 1, 0, 2, Q("1.25 in")),
    Sketcher.Constraint("DistanceY", 1, 2, 1, 1, Q("0.1405 in")),
    Sketcher.Constraint("DistanceY", -1, 1, 0, 2, Q("0.812 in")),
])
sketch18.setExpression("Constraints[12]", "Params.sketch18_width")
groove10 = doc.addObject("PartDesign::Groove", "Groove009")
body.addObject(groove10)
groove10.Profile = sketch18
groove10.ReferenceAxis = (sketch18, ["Axis0"])
groove10.setExpression("Angle", "Params.groove10_angle")
doc.recompute()

datumline = doc.addObject("PartDesign::Line", "DatumLine")
body.addObject(datumline)
datumline.Placement = App.Placement(App.Vector(0, 0, 0), App.Rotation(App.Vector(0, 0, 1), App.Vector(0, -0.885809163, -0.464049703)))
linearpattern = doc.addObject("PartDesign::LinearPattern", "LinearPattern")
body.addObject(linearpattern)
linearpattern.Originals = [groove10]
linearpattern.Direction = (datumline, [""])
linearpattern.Mode = "offset"
linearpattern.setExpression("Offset", "Params.linearpattern_pitch")
linearpattern.Occurrences = 2
body.Tip = linearpattern
doc.recompute()

linearpattern2 = doc.addObject("PartDesign::LinearPattern", "LinearPattern001")
body.addObject(linearpattern2)
linearpattern2.Originals = [groove10]
linearpattern2.Direction = (doc.Y_Axis, [""])
linearpattern2.Mode = "offset"
linearpattern2.setExpression("Offset", "Params.linearpattern2_pitch")
linearpattern2.Occurrences = 2
linearpattern2.Reversed = True
body.Tip = linearpattern2
doc.recompute()

linearpattern3 = doc.addObject("PartDesign::LinearPattern", "LinearPattern002")
body.addObject(linearpattern3)
linearpattern3.Originals = [groove10]
linearpattern3.Direction = (doc.Z_Axis, [""])
linearpattern3.Mode = "offset"
linearpattern3.setExpression("Offset", "Params.linearpattern3_pitch")
linearpattern3.Occurrences = 2
linearpattern3.Reversed = True
body.Tip = linearpattern3
doc.recompute()

datumline2 = doc.addObject("PartDesign::Line", "DatumLine001")
body.addObject(datumline2)
datumline2.Placement = App.Placement(App.Vector(0, 0, 0), App.Rotation(App.Vector(0, 0, 1), App.Vector(0, -0.569104659, -0.822265095)))
linearpattern4 = doc.addObject("PartDesign::LinearPattern", "LinearPattern003")
body.addObject(linearpattern4)
linearpattern4.Originals = [groove10]
linearpattern4.Direction = (datumline2, [""])
linearpattern4.Mode = "offset"
linearpattern4.setExpression("Offset", "Params.linearpattern4_pitch")
linearpattern4.Occurrences = 2
body.Tip = linearpattern4

# Sketch on YZ plane
sketch19 = doc.addObject("Sketcher::SketchObject", "Sketch018")
body.addObject(sketch19)
sketch19.AttachmentSupport = (doc.YZ_Plane, [""])
sketch19.MapMode = "FlatFace"
sketch19.AttachmentOffset = App.Placement(App.Vector(0, 0, -1.145 * 25.4), App.Rotation())
sketch19.addGeometry(Part.Circle(App.Vector(-28.6, 14.3, 0), App.Vector(0, 0, 1), 4.8), False)
sketch19.addConstraint([
    Sketcher.Constraint("Diameter", 0, Q("0.378 in")),
    Sketcher.Constraint("DistanceX", 0, 3, -1, 1, Q("1.125 in")),
    Sketcher.Constraint("DistanceY", -1, 1, 0, 3, Q("0.562 in")),
])
sketch19.setExpression("Constraints[0]", "Params.sketch19_diameter")
pad4 = doc.addObject("PartDesign::Pad", "Pad003")
body.addObject(pad4)
pad4.Profile = sketch19
pad4.setExpression("Length", "Params.pad4_length")
pad4.Reversed = True
doc.recompute()

polarpattern = doc.addObject("PartDesign::PolarPattern", "PolarPattern")
body.addObject(polarpattern)
polarpattern.Originals = [groove9]
polarpattern.Axis = (doc.X_Axis, [""])
polarpattern.Angle = 360
polarpattern.Occurrences = 4
body.Tip = polarpattern
body2 = doc.addObject("PartDesign::Body", "Body001")

# Sketch on XZ plane
sketch20 = doc.addObject("Sketcher::SketchObject", "Sketch019")
body2.addObject(sketch20)
sketch20.AttachmentSupport = (doc.getObject("XZ_Plane001"), [""])
sketch20.MapMode = "FlatFace"
sketch20.AttachmentOffset = App.Placement(App.Vector(0, 0, 1.125 * 25.4), App.Rotation())
sketch20.addGeometry(Part.Circle(App.Vector(-0.9, -20.4, 0), App.Vector(0, 0, 1), 1.8), False)
sketch20.addGeometry(Part.LineSegment(App.Vector(-0.9, -14.3, 0), App.Vector(9.1, -14.3, 0)), True)  # axis
sketch20.addConstraint([
    Sketcher.Constraint("Horizontal", 1),
    Sketcher.Constraint("Vertical", 0, 3, 1, 1),
    Sketcher.Constraint("Diameter", 0, Q("0.139 in")),
    Sketcher.Constraint("DistanceY", 0, 3, -1, 1, Q("0.805 in")),
    Sketcher.Constraint("DistanceY", 1, 1, -1, 1, Q("0.562 in")),
    Sketcher.Constraint("DistanceX", 1, 1, 1, 2, Q("10 mm")),
    Sketcher.Constraint("DistanceX", 0, 3, -1, 1, Q("0.0355 in")),
])
sketch20.setExpression("Constraints[2]", "Params.sketch20_diameter")
revolution2 = doc.addObject("PartDesign::Revolution", "Revolution001")
body2.addObject(revolution2)
revolution2.Profile = sketch20
revolution2.ReferenceAxis = (sketch20, ["Axis0"])
revolution2.setExpression("Angle", "Params.revolution2_angle")
body3 = doc.addObject("PartDesign::Body", "Body002")

# Sketch on XZ plane
sketch21 = doc.addObject("Sketcher::SketchObject", "Sketch020")
body3.addObject(sketch21)
sketch21.AttachmentSupport = (doc.getObject("XZ_Plane002"), [""])
sketch21.MapMode = "FlatFace"
sketch21.AttachmentOffset = App.Placement(App.Vector(0, 0, 1.125 * 25.4), App.Rotation())
sketch21.addGeometry(Part.Circle(App.Vector(-30.8, -20.4, 0), App.Vector(0, 0, 1), 1.8), False)
sketch21.addGeometry(Part.LineSegment(App.Vector(-30.8, -14.3, 0), App.Vector(-20.8, -14.3, 0)), True)  # axis
sketch21.addConstraint([
    Sketcher.Constraint("Horizontal", 1),
    Sketcher.Constraint("Vertical", 0, 3, 1, 1),
    Sketcher.Constraint("Diameter", 0, Q("0.139 in")),
    Sketcher.Constraint("DistanceY", 0, 3, -1, 1, Q("0.805 in")),
    Sketcher.Constraint("DistanceY", 1, 1, -1, 1, Q("0.562 in")),
    Sketcher.Constraint("DistanceX", 1, 1, 1, 2, Q("10 mm")),
    Sketcher.Constraint("DistanceX", 0, 3, -1, 1, Q("1.2145 in")),
])
sketch21.setExpression("Constraints[2]", "Params.sketch21_diameter")
revolution3 = doc.addObject("PartDesign::Revolution", "Revolution002")
body3.addObject(revolution3)
revolution3.Profile = sketch21
revolution3.ReferenceAxis = (sketch21, ["Axis0"])
revolution3.setExpression("Angle", "Params.revolution3_angle")

doc.recompute()
